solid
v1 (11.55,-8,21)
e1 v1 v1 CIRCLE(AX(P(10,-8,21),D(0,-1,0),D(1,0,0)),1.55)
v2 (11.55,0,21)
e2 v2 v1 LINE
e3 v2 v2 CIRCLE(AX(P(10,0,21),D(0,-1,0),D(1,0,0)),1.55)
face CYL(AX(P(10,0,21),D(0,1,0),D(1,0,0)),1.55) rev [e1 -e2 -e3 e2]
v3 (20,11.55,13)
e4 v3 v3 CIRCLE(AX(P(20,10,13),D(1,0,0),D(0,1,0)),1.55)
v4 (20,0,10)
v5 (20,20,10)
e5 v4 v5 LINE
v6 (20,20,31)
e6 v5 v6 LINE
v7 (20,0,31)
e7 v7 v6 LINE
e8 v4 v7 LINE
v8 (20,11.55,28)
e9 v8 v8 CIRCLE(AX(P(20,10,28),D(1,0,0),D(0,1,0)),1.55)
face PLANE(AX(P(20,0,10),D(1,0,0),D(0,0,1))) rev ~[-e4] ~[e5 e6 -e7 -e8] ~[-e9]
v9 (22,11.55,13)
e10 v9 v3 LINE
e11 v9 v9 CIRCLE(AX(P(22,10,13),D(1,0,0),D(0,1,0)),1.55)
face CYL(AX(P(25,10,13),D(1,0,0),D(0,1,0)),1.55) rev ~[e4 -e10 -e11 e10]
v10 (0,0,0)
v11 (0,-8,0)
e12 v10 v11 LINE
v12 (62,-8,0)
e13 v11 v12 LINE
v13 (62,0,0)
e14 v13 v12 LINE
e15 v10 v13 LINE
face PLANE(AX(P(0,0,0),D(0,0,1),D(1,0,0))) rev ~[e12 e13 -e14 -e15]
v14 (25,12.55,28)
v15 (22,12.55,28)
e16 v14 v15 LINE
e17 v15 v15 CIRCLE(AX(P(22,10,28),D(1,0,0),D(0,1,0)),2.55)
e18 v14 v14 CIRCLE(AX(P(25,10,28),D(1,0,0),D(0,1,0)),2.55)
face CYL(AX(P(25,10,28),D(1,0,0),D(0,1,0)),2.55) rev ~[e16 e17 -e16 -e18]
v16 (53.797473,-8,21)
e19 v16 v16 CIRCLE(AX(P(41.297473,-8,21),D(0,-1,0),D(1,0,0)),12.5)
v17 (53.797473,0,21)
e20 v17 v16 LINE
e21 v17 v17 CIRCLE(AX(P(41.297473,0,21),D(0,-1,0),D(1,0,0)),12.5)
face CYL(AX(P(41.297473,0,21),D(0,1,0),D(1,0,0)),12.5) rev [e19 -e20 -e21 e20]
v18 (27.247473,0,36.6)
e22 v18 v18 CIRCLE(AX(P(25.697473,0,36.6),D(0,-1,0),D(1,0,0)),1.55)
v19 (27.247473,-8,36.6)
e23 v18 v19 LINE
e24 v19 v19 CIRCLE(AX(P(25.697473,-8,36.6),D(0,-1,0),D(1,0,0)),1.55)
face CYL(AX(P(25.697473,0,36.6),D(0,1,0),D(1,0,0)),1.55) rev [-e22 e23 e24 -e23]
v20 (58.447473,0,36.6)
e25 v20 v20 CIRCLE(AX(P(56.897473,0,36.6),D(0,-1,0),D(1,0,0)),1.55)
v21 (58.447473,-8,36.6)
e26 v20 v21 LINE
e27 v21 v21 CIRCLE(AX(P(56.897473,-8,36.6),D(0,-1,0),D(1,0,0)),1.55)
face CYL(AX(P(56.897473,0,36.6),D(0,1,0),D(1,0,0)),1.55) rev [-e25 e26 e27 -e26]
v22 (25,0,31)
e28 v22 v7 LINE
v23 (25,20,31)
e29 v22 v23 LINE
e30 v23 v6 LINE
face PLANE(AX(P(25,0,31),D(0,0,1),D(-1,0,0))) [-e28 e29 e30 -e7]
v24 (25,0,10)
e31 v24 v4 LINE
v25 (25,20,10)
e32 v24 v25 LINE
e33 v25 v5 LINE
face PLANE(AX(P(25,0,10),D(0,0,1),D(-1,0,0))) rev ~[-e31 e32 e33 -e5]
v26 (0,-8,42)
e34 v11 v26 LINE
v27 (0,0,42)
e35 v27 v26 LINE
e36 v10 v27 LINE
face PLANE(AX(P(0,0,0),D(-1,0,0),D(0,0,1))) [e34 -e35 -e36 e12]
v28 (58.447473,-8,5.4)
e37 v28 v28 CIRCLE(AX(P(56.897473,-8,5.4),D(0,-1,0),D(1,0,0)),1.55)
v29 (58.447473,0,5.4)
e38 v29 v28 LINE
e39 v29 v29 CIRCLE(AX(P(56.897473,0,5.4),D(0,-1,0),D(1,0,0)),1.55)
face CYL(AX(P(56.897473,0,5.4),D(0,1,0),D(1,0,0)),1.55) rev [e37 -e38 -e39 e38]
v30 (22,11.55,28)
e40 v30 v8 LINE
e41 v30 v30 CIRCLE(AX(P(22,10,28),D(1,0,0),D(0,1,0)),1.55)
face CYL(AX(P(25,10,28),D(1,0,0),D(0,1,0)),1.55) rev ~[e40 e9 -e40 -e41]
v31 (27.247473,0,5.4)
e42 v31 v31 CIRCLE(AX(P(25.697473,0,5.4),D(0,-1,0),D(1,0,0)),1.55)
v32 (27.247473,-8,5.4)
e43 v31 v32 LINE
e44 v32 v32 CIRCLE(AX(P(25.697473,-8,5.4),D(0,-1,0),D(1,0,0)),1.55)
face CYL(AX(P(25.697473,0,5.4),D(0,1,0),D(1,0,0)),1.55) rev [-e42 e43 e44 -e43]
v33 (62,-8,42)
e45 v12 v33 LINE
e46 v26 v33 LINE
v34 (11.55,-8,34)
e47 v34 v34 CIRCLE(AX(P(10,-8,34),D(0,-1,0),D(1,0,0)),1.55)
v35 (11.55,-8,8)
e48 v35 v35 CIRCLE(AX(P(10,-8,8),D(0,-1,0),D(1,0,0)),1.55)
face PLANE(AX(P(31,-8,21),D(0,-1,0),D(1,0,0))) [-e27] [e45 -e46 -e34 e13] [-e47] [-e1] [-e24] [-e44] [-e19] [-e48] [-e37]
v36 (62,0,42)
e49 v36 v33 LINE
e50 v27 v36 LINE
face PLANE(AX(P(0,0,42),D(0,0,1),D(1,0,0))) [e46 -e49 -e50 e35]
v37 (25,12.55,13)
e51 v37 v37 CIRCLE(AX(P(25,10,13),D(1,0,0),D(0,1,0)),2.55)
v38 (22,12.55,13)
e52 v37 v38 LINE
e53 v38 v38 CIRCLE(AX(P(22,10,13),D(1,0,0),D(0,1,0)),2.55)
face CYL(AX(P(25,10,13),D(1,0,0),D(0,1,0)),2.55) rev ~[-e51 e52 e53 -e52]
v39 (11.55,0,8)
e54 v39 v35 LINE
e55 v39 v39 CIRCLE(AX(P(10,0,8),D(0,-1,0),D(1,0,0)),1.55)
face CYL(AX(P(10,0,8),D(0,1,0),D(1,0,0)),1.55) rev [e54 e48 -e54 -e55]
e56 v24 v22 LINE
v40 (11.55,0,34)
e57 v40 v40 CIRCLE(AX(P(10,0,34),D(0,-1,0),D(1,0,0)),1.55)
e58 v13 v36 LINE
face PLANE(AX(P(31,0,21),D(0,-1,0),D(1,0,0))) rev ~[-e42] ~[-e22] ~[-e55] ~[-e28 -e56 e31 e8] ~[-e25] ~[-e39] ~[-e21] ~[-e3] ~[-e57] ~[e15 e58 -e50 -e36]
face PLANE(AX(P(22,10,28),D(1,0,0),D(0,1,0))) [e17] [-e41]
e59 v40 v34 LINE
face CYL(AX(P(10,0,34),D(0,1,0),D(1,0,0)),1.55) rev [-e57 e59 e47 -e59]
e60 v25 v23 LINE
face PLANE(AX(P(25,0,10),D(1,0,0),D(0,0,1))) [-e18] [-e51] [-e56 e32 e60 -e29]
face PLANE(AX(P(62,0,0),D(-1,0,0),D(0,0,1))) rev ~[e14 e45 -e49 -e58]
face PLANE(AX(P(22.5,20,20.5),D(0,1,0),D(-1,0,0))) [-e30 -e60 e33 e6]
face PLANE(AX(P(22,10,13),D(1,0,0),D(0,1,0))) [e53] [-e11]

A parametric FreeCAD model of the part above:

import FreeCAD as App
import Part
import Sketcher

doc = App.newDocument("Part")
params = doc.addObject("Spreadsheet::Sheet", "Params")
for row, (alias, value) in enumerate([
    ("sketch1_diameter", "25 mm"),
    ("sketch1_diameter2", "3.1 mm"),
    ("sketch1_width", "62 mm"),
    ("sketch1_height", "42 mm"),
    ("pad1_length", "8 mm"),
    ("sketch2_width", "5 mm"),
    ("sketch2_height", "21 mm"),
    ("pad2_length", "20 mm"),
    ("sketch3_diameter", "3.1 mm"),
    ("pocket1_length", "25 mm"),
    ("sketch4_diameter", "5.1 mm"),
    ("pocket2_length", "3 mm"),
], start=1):
    params.set(f"A{row}", alias)
    params.set(f"B{row}", "=" + value)
    params.setAlias(f"B{row}", alias)

body = doc.addObject("PartDesign::Body", "Body")

# Sketch on XZ plane
sketch1 = body.newObject("Sketcher::SketchObject", "Sketch")
sketch1.AttachmentSupport = (doc.getObject("XZ_Plane"), [""])
sketch1.MapMode = "FlatFace"
sketch1.addGeometry([
    Part.LineSegment(App.Vector(0, 42, 0), App.Vector(0, 0, 0)),  # 0
    Part.LineSegment(App.Vector(0, 0, 0), App.Vector(62, 0, 0)),  # 1
    Part.LineSegment(App.Vector(62, 0, 0), App.Vector(62, 42, 0)),  # 2
    Part.LineSegment(App.Vector(62, 42, 0), App.Vector(0, 42, 0)),  # 3
    Part.Circle(App.Vector(10, 8, 0), App.Vector(0, 0, 1), 1.6),  # 4
    Part.Circle(App.Vector(25.7, 5.4, 0), App.Vector(0, 0, 1), 1.6),  # 5
    Part.Circle(App.Vector(56.9, 5.4, 0), App.Vector(0, 0, 1), 1.6),  # 6
    Part.Circle(App.Vector(10, 21, 0), App.Vector(0, 0, 1), 1.6),  # 7
    Part.Circle(App.Vector(10, 34, 0), App.Vector(0, 0, 1), 1.6),  # 8
    Part.Circle(App.Vector(25.7, 36.6, 0), App.Vector(0, 0, 1), 1.6),  # 9
    Part.Circle(App.Vector(41.3, 21, 0), App.Vector(0, 0, 1), 12.5),  # 10
    Part.Circle(App.Vector(56.9, 36.6, 0), App.Vector(0, 0, 1), 1.6),  # 11
], False)
sketch1.addConstraint([
    Sketcher.Constraint("Coincident", 0, 2, 1, 1),
    Sketcher.Constraint("Coincident", 1, 2, 2, 1),
    Sketcher.Constraint("Coincident", 2, 2, 3, 1),
    Sketcher.Constraint("Coincident", 3, 2, 0, 1),
    Sketcher.Constraint("Vertical", 0),
    Sketcher.Constraint("Horizontal", 1),
    Sketcher.Constraint("Vertical", 2),
    Sketcher.Constraint("Horizontal", 3),
    Sketcher.Constraint("Coincident", 0, 2, -1, 1),
    Sketcher.Constraint("Equal", 4, 5),
    Sketcher.Constraint("Equal", 5, 6),
    Sketcher.Constraint("Equal", 6, 7),
    Sketcher.Constraint("Equal", 7, 8),
    Sketcher.Constraint("Equal", 8, 9),
    Sketcher.Constraint("Equal", 9, 11),
    Sketcher.Constraint("Horizontal", 5, 3, 6, 3),
    Sketcher.Constraint("Horizontal", 7, 3, 10, 3),
    Sketcher.Constraint("Horizontal", 9, 3, 11, 3),
    Sketcher.Constraint("Vertical", 4, 3, 7, 3),
    Sketcher.Constraint("Vertical", 7, 3, 8, 3),
    Sketcher.Constraint("Vertical", 5, 3, 9, 3),
    Sketcher.Constraint("Vertical", 6, 3, 11, 3),
    Sketcher.Constraint("Diameter", 10, 25.0),
    Sketcher.Constraint("Diameter", 4, 3.1),
    Sketcher.Constraint("DistanceX", 1, 1, 1, 2, 62.0),
    Sketcher.Constraint("DistanceY", 0, 2, 0, 1, 42.0),
    Sketcher.Constraint("DistanceX", -1, 1, 4, 3, 10.0),
    Sketcher.Constraint("DistanceY", -1, 1, 4, 3, 8.0),
    Sketcher.Constraint("DistanceY", -1, 1, 7, 3, 21.0),
    Sketcher.Constraint("DistanceY", -1, 1, 8, 3, 34.0),
    Sketcher.Constraint("DistanceY", -1, 1, 5, 3, 5.4),
    Sketcher.Constraint("DistanceY", -1, 1, 9, 3, 36.6),
    Sketcher.Constraint("DistanceX", 5, 3, 6, 3, 31.2),
    Sketcher.Constraint("DistanceX", 5, 3, 10, 3, 15.6),
    Sketcher.Constraint("DistanceX", -1, 1, 5, 3, 25.697473),
])
sketch1.setExpression("Constraints[22]", "Params.sketch1_diameter")
sketch1.setExpression("Constraints[23]", "Params.sketch1_diameter2")
sketch1.setExpression("Constraints[24]", "Params.sketch1_width")
sketch1.setExpression("Constraints[25]", "Params.sketch1_height")
pad1 = body.newObject("PartDesign::Pad", "Pad")
pad1.Profile = sketch1
pad1.setExpression("Length", "Params.pad1_length")

# Sketch on XZ plane
sketch2 = body.newObject("Sketcher::SketchObject", "Sketch001")
sketch2.AttachmentSupport = (doc.getObject("XZ_Plane"), [""])
sketch2.MapMode = "FlatFace"
sketch2.addGeometry([
    Part.LineSegment(App.Vector(25, 31, 0), App.Vector(25, 10, 0)),
    Part.LineSegment(App.Vector(25, 10, 0), App.Vector(20, 10, 0)),
    Part.LineSegment(App.Vector(20, 10, 0), App.Vector(20, 31, 0)),
    Part.LineSegment(App.Vector(20, 31, 0), App.Vector(25, 31, 0)),
], False)
sketch2.addConstraint([
    Sketcher.Constraint("Coincident", 0, 2, 1, 1),
    Sketcher.Constraint("Coincident", 1, 2, 2, 1),
    Sketcher.Constraint("Coincident", 2, 2, 3, 1),
    Sketcher.Constraint("Coincident", 3, 2, 0, 1),
    Sketcher.Constraint("Vertical", 0),
    Sketcher.Constraint("Horizontal", 1),
    Sketcher.Constraint("Vertical", 2),
    Sketcher.Constraint("Horizontal", 3),
    Sketcher.Constraint("DistanceX", 1, 2, 1, 1, 5.0),
    Sketcher.Constraint("DistanceY", 0, 2, 0, 1, 21.0),
    Sketcher.Constraint("DistanceX", -1, 1, 0, 2, 25.0),
    Sketcher.Constraint("DistanceY", -1, 1, 0, 2, 10.0),
])
sketch2.setExpression("Constraints[8]", "Params.sketch2_width")
sketch2.setExpression("Constraints[9]", "Params.sketch2_height")
pad2 = body.newObject("PartDesign::Pad", "Pad001")
pad2.Profile = sketch2
pad2.setExpression("Length", "Params.pad2_length")
pad2.Reversed = True

# Sketch on YZ plane
sketch3 = body.newObject("Sketcher::SketchObject", "Sketch002")
sketch3.AttachmentSupport = (doc.getObject("YZ_Plane"), [""])
sketch3.MapMode = "FlatFace"
sketch3.AttachmentOffset = App.Placement(App.Vector(0, 0, 25), App.Rotation())
sketch3.addGeometry([
    Part.Circle(App.Vector(10, 28, 0), App.Vector(0, 0, 1), 1.6),
    Part.Circle(App.Vector(10, 13, 0), App.Vector(0, 0, 1), 1.6),
], False)
sketch3.addConstraint([
    Sketcher.Constraint("Equal", 0, 1),
    Sketcher.Constraint("Vertical", 0, 3, 1, 3),
    Sketcher.Constraint("Diameter", 0, 3.1),
    Sketcher.Constraint("DistanceX", -1, 1, 0, 3, 10.0),
    Sketcher.Constraint("DistanceY", -1, 1, 0, 3, 28.0),
    Sketcher.Constraint("DistanceY", -1, 1, 1, 3, 13.0),
])
sketch3.setExpression("Constraints[2]", "Params.sketch3_diameter")
pocket1 = body.newObject("PartDesign::Pocket", "Pocket")
pocket1.Profile = sketch3
pocket1.setExpression("Length", "Params.pocket1_length")

# Sketch on YZ plane
sketch4 = body.newObject("Sketcher::SketchObject", "Sketch003")
sketch4.AttachmentSupport = (doc.getObject("YZ_Plane"), [""])
sketch4.MapMode = "FlatFace"
sketch4.AttachmentOffset = App.Placement(App.Vector(0, 0, 25), App.Rotation())
sketch4.addGeometry([
    Part.Circle(App.Vector(10, 28, 0), App.Vector(0, 0, 1), 2.5),
    Part.Circle(App.Vector(10, 13, 0), App.Vector(0, 0, 1), 2.5),
], False)
sketch4.addConstraint([
    Sketcher.Constraint("Equal", 0, 1),
    Sketcher.Constraint("Vertical", 0, 3, 1, 3),
    Sketcher.Constraint("Diameter", 0, 5.1),
    Sketcher.Constraint("DistanceX", -1, 1, 0, 3, 10.0),
    Sketcher.Constraint("DistanceY", -1, 1, 0, 3, 28.0),
    Sketcher.Constraint("DistanceY", -1, 1, 1, 3, 13.0),
])
sketch4.setExpression("Constraints[2]", "Params.sketch4_diameter")
pocket2 = body.newObject("PartDesign::Pocket", "Pocket001")
pocket2.Profile = sketch4
pocket2.setExpression("Length", "Params.pocket2_length")

doc.recompute()
